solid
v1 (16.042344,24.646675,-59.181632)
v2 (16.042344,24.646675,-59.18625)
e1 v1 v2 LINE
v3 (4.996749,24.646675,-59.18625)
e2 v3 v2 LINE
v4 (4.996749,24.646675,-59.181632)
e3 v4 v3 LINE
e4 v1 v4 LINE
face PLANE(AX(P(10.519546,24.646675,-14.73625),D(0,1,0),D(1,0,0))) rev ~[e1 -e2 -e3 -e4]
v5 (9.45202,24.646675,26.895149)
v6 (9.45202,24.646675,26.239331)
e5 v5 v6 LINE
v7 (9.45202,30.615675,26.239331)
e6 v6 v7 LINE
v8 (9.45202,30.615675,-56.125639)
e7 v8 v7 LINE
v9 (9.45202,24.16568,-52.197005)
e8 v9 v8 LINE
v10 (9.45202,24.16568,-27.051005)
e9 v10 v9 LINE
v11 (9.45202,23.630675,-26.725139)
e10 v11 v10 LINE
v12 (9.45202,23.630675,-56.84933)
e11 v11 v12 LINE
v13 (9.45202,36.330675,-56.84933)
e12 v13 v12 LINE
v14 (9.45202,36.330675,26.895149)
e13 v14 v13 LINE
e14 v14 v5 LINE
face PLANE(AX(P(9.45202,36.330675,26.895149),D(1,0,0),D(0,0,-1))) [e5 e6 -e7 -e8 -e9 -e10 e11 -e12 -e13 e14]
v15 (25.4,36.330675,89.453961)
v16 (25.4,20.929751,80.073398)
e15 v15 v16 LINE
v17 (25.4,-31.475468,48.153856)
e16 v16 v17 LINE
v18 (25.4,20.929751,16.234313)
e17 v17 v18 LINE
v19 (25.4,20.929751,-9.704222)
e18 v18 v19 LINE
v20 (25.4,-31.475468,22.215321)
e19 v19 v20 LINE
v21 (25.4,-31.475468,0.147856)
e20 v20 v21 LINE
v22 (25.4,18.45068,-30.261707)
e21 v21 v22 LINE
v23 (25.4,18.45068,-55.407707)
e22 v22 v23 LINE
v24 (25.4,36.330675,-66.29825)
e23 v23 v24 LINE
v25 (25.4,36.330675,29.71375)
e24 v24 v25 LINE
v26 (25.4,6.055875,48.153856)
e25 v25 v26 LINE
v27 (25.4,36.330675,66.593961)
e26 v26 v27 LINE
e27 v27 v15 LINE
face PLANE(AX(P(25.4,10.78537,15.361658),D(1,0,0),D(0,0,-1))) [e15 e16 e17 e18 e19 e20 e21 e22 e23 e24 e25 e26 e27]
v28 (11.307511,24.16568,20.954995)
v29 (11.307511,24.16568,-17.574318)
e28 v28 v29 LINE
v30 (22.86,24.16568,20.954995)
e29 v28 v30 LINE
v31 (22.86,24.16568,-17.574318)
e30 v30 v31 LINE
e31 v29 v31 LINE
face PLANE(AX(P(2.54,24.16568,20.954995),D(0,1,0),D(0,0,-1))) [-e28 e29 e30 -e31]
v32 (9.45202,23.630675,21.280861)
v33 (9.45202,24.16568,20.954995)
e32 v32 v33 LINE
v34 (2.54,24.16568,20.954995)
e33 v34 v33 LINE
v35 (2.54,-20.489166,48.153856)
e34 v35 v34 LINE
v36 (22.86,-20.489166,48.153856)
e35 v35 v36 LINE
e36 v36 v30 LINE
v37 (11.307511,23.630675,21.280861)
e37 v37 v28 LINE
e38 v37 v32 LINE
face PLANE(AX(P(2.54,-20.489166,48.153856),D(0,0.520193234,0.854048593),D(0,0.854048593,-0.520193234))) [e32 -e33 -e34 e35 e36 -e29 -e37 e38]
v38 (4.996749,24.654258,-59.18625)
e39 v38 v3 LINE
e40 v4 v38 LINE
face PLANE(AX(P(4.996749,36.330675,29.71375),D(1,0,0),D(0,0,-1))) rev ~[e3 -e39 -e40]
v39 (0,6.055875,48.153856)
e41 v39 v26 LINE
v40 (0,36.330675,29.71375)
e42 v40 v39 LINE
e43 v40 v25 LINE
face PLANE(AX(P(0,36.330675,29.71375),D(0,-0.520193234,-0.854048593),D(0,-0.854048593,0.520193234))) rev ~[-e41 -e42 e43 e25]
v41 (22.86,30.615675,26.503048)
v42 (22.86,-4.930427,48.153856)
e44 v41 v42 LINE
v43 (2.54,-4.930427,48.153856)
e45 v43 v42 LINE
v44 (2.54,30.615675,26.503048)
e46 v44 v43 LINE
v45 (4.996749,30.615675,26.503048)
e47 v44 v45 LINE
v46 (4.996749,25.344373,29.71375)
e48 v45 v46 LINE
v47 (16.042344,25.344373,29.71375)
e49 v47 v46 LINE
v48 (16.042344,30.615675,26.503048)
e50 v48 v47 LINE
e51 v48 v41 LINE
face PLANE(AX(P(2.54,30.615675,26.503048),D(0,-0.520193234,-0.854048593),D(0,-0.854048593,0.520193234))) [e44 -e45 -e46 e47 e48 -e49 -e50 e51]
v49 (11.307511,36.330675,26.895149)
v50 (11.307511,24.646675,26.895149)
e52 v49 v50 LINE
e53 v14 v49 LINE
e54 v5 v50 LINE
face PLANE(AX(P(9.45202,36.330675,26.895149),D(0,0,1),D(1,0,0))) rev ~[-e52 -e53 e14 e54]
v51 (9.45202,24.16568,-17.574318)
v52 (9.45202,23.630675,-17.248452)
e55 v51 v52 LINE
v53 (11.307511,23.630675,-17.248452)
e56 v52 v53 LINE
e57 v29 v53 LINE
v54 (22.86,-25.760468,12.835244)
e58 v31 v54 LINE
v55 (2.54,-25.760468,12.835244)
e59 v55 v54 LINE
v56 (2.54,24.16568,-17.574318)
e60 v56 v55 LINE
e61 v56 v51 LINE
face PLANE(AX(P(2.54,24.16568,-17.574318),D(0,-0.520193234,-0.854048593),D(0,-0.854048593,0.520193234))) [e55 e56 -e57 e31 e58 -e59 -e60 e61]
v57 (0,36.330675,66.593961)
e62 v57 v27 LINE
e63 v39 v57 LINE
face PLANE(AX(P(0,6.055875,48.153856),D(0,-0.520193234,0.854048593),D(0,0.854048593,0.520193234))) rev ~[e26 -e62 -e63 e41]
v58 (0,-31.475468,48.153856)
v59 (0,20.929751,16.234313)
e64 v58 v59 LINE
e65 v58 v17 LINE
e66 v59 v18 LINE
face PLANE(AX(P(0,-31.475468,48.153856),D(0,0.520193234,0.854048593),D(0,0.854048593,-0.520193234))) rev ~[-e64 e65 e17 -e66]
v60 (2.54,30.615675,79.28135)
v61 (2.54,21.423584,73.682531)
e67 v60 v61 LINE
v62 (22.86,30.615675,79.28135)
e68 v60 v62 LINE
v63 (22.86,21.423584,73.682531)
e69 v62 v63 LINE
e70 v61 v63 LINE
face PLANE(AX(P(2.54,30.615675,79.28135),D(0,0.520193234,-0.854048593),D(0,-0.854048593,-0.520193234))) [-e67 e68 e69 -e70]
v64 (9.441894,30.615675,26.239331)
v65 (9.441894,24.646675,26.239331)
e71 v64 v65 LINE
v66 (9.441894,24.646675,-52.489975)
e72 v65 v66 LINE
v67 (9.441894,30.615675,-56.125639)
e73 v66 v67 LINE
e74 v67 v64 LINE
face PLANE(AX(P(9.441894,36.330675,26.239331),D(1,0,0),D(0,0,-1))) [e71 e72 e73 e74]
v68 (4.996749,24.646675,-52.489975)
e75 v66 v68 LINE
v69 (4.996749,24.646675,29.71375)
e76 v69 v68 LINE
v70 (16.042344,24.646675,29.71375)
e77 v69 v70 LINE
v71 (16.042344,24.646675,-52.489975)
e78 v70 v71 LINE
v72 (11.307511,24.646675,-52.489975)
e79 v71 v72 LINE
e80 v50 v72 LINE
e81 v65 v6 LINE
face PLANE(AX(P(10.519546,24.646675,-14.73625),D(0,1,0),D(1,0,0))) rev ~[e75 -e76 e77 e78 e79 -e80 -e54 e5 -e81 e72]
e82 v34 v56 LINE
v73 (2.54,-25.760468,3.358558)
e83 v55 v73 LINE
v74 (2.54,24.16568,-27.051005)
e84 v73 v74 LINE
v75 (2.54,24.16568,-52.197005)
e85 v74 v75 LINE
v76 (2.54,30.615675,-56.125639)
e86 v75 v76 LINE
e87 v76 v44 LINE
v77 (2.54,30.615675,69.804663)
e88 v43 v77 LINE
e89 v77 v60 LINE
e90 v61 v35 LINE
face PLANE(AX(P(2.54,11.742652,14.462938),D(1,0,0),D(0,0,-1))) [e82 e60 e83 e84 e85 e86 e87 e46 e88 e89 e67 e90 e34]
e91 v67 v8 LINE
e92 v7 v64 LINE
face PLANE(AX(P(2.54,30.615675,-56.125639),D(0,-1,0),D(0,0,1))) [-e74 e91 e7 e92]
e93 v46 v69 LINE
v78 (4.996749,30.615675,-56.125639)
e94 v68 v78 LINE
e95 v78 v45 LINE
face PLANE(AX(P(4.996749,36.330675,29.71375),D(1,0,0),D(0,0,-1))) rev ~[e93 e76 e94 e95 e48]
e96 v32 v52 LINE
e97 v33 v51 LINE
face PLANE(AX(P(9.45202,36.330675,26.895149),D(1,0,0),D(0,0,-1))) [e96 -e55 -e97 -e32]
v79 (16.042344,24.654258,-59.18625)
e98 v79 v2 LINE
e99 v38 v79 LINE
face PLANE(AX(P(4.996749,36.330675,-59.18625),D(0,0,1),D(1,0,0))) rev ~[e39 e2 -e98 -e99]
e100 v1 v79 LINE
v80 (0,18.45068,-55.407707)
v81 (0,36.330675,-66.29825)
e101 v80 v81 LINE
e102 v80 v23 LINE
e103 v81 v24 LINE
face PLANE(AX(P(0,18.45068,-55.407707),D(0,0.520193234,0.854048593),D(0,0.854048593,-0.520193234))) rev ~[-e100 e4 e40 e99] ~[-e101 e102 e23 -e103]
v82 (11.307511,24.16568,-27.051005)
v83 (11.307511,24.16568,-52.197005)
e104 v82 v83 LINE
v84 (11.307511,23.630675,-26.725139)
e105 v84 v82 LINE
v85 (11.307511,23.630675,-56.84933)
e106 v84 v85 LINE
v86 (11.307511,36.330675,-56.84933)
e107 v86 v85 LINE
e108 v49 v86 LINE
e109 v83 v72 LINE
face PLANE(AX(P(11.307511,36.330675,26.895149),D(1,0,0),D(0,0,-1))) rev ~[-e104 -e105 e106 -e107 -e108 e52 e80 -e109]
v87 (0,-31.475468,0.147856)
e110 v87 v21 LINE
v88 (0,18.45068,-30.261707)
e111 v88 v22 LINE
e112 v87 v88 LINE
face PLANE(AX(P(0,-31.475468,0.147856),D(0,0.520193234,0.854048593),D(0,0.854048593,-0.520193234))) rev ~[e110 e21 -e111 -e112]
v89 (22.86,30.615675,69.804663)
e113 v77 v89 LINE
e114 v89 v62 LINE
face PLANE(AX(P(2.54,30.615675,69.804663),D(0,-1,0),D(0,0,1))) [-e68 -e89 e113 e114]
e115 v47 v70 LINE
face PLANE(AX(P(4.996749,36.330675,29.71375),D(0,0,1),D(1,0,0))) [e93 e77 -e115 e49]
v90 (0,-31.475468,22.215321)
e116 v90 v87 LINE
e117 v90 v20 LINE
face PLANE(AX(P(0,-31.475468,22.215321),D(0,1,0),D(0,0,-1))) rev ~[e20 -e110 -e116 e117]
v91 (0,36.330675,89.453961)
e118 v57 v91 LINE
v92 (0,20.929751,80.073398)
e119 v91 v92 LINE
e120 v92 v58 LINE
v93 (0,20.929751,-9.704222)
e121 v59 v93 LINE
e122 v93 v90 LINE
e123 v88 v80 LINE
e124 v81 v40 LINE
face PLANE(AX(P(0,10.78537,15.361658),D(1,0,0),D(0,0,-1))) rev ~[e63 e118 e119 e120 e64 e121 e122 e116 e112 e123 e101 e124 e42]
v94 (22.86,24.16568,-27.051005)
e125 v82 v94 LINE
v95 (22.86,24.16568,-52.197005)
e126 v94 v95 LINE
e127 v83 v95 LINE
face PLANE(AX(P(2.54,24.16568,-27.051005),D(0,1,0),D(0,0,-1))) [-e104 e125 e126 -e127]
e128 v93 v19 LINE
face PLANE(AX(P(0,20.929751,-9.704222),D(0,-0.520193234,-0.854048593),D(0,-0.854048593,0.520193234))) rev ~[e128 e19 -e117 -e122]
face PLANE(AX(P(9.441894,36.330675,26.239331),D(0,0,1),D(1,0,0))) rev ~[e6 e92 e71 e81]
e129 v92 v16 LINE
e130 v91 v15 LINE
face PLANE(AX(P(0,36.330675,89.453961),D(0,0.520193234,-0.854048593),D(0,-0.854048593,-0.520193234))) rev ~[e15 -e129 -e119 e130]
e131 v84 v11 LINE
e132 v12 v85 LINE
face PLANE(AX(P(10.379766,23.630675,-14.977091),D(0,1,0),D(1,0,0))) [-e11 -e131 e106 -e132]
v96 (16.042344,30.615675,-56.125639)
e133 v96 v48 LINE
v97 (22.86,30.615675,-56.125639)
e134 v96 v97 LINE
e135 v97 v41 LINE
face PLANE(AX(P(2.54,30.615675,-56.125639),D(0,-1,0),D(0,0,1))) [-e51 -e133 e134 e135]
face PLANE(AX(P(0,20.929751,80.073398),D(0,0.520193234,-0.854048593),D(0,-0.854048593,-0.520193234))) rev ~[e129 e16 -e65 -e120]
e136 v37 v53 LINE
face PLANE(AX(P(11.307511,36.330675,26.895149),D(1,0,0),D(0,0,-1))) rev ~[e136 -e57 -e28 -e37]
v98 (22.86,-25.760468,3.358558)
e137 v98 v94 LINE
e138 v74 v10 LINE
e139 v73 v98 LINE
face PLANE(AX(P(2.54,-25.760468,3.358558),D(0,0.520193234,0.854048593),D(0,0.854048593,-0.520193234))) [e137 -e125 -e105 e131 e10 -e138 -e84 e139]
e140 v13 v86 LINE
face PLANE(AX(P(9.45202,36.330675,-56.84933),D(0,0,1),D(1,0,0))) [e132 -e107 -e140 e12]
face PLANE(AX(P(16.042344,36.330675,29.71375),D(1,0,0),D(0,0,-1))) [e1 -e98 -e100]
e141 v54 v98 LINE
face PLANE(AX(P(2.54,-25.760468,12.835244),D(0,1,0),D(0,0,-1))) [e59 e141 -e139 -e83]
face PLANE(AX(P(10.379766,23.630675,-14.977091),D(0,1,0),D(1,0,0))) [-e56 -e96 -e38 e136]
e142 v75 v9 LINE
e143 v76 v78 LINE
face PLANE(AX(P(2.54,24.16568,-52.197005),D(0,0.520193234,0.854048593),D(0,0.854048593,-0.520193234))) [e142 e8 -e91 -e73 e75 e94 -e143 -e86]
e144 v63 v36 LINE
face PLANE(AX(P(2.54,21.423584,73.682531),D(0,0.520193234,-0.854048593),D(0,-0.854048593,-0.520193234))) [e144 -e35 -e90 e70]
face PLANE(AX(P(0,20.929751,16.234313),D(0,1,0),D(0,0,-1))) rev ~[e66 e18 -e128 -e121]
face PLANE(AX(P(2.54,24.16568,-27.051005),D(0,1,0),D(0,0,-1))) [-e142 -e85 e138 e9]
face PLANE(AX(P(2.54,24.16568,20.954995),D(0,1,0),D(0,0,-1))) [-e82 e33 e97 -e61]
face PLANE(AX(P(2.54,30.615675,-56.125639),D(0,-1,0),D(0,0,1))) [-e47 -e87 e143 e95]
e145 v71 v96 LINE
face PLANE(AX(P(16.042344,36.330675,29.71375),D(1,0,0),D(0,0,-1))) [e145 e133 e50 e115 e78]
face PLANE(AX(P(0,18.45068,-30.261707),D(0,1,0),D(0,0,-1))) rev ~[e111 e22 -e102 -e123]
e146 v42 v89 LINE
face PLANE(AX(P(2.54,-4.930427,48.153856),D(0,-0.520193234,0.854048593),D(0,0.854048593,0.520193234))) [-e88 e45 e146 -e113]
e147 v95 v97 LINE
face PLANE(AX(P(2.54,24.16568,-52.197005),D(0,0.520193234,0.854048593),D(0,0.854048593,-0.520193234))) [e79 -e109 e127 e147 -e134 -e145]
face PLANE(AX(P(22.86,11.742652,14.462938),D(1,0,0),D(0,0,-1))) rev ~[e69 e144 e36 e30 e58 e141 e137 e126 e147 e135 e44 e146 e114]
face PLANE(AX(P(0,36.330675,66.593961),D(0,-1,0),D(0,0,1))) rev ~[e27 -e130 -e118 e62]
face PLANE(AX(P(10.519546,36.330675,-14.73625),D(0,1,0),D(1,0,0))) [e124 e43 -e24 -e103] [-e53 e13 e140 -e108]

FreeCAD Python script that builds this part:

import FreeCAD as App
import Part
import Sketcher
Q = App.Units.Quantity

doc = App.newDocument("Part")
body = doc.addObject("PartDesign::Body", "Body")

# Sketch on YZ plane
sketch1 = body.newObject("Sketcher::SketchObject", "Sketch")
sketch1.AttachmentSupport = (doc.getObject("YZ_Plane"), [""])
sketch1.MapMode = "FlatFace"
sketch1.addGeometry([
    Part.LineSegment(App.Vector(21, 80, 0), App.Vector(-31, 48, 0)),  # 0
    Part.LineSegment(App.Vector(-31, 48, 0), App.Vector(21, 16, 0)),  # 1
    Part.LineSegment(App.Vector(21, 16, 0), App.Vector(21, -10, 0)),  # 2
    Part.LineSegment(App.Vector(21, -10, 0), App.Vector(-31, 22, 0)),  # 3
    Part.LineSegment(App.Vector(-31, 22, 0), App.Vector(-31, 0, 0)),  # 4
    Part.LineSegment(App.Vector(-31, 0, 0), App.Vector(18, -30, 0)),  # 5
    Part.LineSegment(App.Vector(18, -30, 0), App.Vector(18, -55, 0)),  # 6
    Part.LineSegment(App.Vector(18, -55, 0), App.Vector(36, -66, 0)),  # 7
    Part.LineSegment(App.Vector(36, -66, 0), App.Vector(36, 30, 0)),  # 8
    Part.LineSegment(App.Vector(36, 30, 0), App.Vector(6, 48, 0)),  # 9
    Part.LineSegment(App.Vector(6, 48, 0), App.Vector(36, 67, 0)),  # 10
    Part.LineSegment(App.Vector(36, 67, 0), App.Vector(36, 89, 0)),  # 11
    Part.LineSegment(App.Vector(36, 89, 0), App.Vector(21, 80, 0)),  # 12
], False)
sketch1.addConstraint([
    Sketcher.Constraint("Coincident", 0, 2, 1, 1),
    Sketcher.Constraint("Coincident", 1, 2, 2, 1),
    Sketcher.Constraint("Coincident", 2, 2, 3, 1),
    Sketcher.Constraint("Coincident", 3, 2, 4, 1),
    Sketcher.Constraint("Coincident", 4, 2, 5, 1),
    Sketcher.Constraint("Coincident", 5, 2, 6, 1),
    Sketcher.Constraint("Coincident", 6, 2, 7, 1),
    Sketcher.Constraint("Coincident", 7, 2, 8, 1),
    Sketcher.Constraint("Coincident", 8, 2, 9, 1),
    Sketcher.Constraint("Coincident", 9, 2, 10, 1),
    Sketcher.Constraint("Coincident", 10, 2, 11, 1),
    Sketcher.Constraint("Coincident", 11, 2, 12, 1),
    Sketcher.Constraint("Coincident", 12, 2, 0, 1),
    Sketcher.Constraint("Vertical", 2),
    Sketcher.Constraint("Vertical", 4),
    Sketcher.Constraint("Vertical", 6),
    Sketcher.Constraint("Vertical", 8),
    Sketcher.Constraint("Vertical", 11),
    Sketcher.Constraint("Parallel", 1, 3),
    Sketcher.Constraint("Parallel", 3, 5),
    Sketcher.Constraint("Parallel", 5, 7),
    Sketcher.Constraint("Parallel", 7, 9),
    Sketcher.Constraint("Parallel", 0, 10),
    Sketcher.Constraint("Parallel", 10, 12),
    Sketcher.Constraint("Horizontal", 0, 2, 9, 2),
    Sketcher.Constraint("Vertical", 0, 2, 3, 2),
    Sketcher.Constraint("Vertical", 8, 2, 10, 2),
    Sketcher.Constraint("Vertical", 2, 2, 12, 2),
    Sketcher.Constraint("Equal", 0, 1),
    Sketcher.Constraint("DistanceY", 11, 1, 11, 2, Q("0.9 in")),
    Sketcher.Constraint("DistanceY", 6, 2, 6, 1, Q("0.99 in")),
    Sketcher.Constraint("DistanceY", 8, 1, 8, 2, Q("3.78 in")),
    Sketcher.Constraint("DistanceY", -1, 1, 12, 2, Q("80.073398 mm")),
    Sketcher.Constraint("DistanceX", 9, 2, 8, 2, Q("30.2748 mm")),
    Sketcher.Constraint("Distance", 7, Q("20.935572 mm")),
    Sketcher.Constraint("Distance", 9, Q("35.448568 mm")),
    Sketcher.Constraint("DistanceY", 2, 2, 2, 1, Q("25.938535 mm")),
    Sketcher.Constraint("DistanceX", -1, 1, 1, 2, Q("20.929751 mm")),
    Sketcher.Constraint("DistanceY", 2, 2, -1, 1, Q("9.704222 mm")),
])
pad1 = body.newObject("PartDesign::Pad", "Pad")
pad1.Profile = sketch1
pad1.Length = Q("1 in")

# Sketch on YZ plane
sketch2 = body.newObject("Sketcher::SketchObject", "Sketch001")
sketch2.AttachmentSupport = (doc.getObject("YZ_Plane"), [""])
sketch2.MapMode = "FlatFace"
sketch2.AttachmentOffset = App.Placement(App.Vector(0, 0, 0.1 * 25.4), App.Rotation())
sketch2.addGeometry([
    Part.LineSegment(App.Vector(21, 74, 0), App.Vector(-20, 48, 0)),  # 0
    Part.LineSegment(App.Vector(-20, 48, 0), App.Vector(24, 21, 0)),  # 1
    Part.LineSegment(App.Vector(24, 21, 0), App.Vector(24, -18, 0)),  # 2
    Part.LineSegment(App.Vector(24, -18, 0), App.Vector(-26, 13, 0)),  # 3
    Part.LineSegment(App.Vector(-26, 13, 0), App.Vector(-26, 3, 0)),  # 4
    Part.LineSegment(App.Vector(-26, 3, 0), App.Vector(24, -27, 0)),  # 5
    Part.LineSegment(App.Vector(24, -27, 0), App.Vector(24, -52, 0)),  # 6
    Part.LineSegment(App.Vector(24, -52, 0), App.Vector(31, -56, 0)),  # 7
    Part.LineSegment(App.Vector(31, -56, 0), App.Vector(31, 27, 0)),  # 8
    Part.LineSegment(App.Vector(31, 27, 0), App.Vector(-5, 48, 0)),  # 9
    Part.LineSegment(App.Vector(-5, 48, 0), App.Vector(31, 70, 0)),  # 10
    Part.LineSegment(App.Vector(31, 70, 0), App.Vector(31, 79, 0)),  # 11
    Part.LineSegment(App.Vector(31, 79, 0), App.Vector(21, 74, 0)),  # 12
], False)
sketch2.addConstraint([
    Sketcher.Constraint("Coincident", 0, 2, 1, 1),
    Sketcher.Constraint("Coincident", 1, 2, 2, 1),
    Sketcher.Constraint("Coincident", 2, 2, 3, 1),
    Sketcher.Constraint("Coincident", 3, 2, 4, 1),
    Sketcher.Constraint("Coincident", 4, 2, 5, 1),
    Sketcher.Constraint("Coincident", 5, 2, 6, 1),
    Sketcher.Constraint("Coincident", 6, 2, 7, 1),
    Sketcher.Constraint("Coincident", 7, 2, 8, 1),
    Sketcher.Constraint("Coincident", 8, 2, 9, 1),
    Sketcher.Constraint("Coincident", 9, 2, 10, 1),
    Sketcher.Constraint("Coincident", 10, 2, 11, 1),
    Sketcher.Constraint("Coincident", 11, 2, 12, 1),
    Sketcher.Constraint("Coincident", 12, 2, 0, 1),
    Sketcher.Constraint("Vertical", 2),
    Sketcher.Constraint("Vertical", 4),
    Sketcher.Constraint("Vertical", 6),
    Sketcher.Constraint("Vertical", 8),
    Sketcher.Constraint("Vertical", 11),
    Sketcher.Constraint("Parallel", 1, 3),
    Sketcher.Constraint("Parallel", 3, 5),
    Sketcher.Constraint("Parallel", 5, 7),
    Sketcher.Constraint("Parallel", 7, 9),
    Sketcher.Constraint("Parallel", 0, 10),
    Sketcher.Constraint("Parallel", 10, 12),
    Sketcher.Constraint("Horizontal", 0, 2, 9, 2),
    Sketcher.Constraint("Vertical", 2, 2, 5, 2),
    Sketcher.Constraint("Vertical", 8, 2, 10, 2),
    Sketcher.Constraint("Equal", 4, 11),
    Sketcher.Constraint("Equal", 9, 10),
    Sketcher.Constraint("DistanceY", 6, 2, 6, 1, Q("0.99 in")),
    Sketcher.Constraint("DistanceY", 5, 2, 1, 2, Q("1.89 in")),
    Sketcher.Constraint("DistanceY", -1, 1, 1, 2, Q("0.8249998 in")),
    Sketcher.Constraint("DistanceY", 8, 2, 11, 2, Q("52.778302 mm")),
    Sketcher.Constraint("Distance", 0, Q("49.075369 mm")),
    Sketcher.Constraint("Distance", 1, Q("52.286071 mm")),
    Sketcher.Constraint("Distance", 7, Q("7.552258 mm")),
    Sketcher.Constraint("DistanceY", 2, 2, 2, 1, Q("38.529313 mm")),
    Sketcher.Constraint("DistanceX", -1, 1, 1, 2, Q("24.16568 mm")),
    Sketcher.Constraint("DistanceY", 3, 2, 0, 2, Q("35.318611 mm")),
])
pocket1 = body.newObject("PartDesign::Pocket", "Pocket")
pocket1.Profile = sketch2
pocket1.Length = Q("0.8 in")
pocket1.Reversed = True

# Sketch on XZ plane
sketch3 = body.newObject("Sketcher::SketchObject", "Sketch002")
sketch3.AttachmentSupport = (doc.getObject("XZ_Plane"), [""])
sketch3.MapMode = "FlatFace"
sketch3.AttachmentOffset = App.Placement(App.Vector(0, 0, -36.330675), App.Rotation())
sketch3.addGeometry([
    Part.LineSegment(App.Vector(5, -59.2, 0), App.Vector(5, 29.7, 0)),  # 0
    Part.LineSegment(App.Vector(5, 29.7, 0), App.Vector(16, 29.7, 0)),  # 1
    Part.LineSegment(App.Vector(16, 29.7, 0), App.Vector(16, -59.2, 0)),  # 2
    Part.LineSegment(App.Vector(16, -59.2, 0), App.Vector(5, -59.2, 0)),  # 3
    Part.LineSegment(App.Vector(11, 26.2, 0), App.Vector(9.4, 26.2, 0)),  # 4
    Part.LineSegment(App.Vector(9.4, 26.2, 0), App.Vector(9.4, -56.7, 0)),  # 5
    Part.LineSegment(App.Vector(9.4, -56.7, 0), App.Vector(11, -56.7, 0)),  # 6
    Part.LineSegment(App.Vector(11, -56.7, 0), App.Vector(11, 26.2, 0)),  # 7
], False)
sketch3.addConstraint([
    Sketcher.Constraint("Coincident", 0, 2, 1, 1),
    Sketcher.Constraint("Coincident", 1, 2, 2, 1),
    Sketcher.Constraint("Coincident", 2, 2, 3, 1),
    Sketcher.Constraint("Coincident", 3, 2, 0, 1),
    Sketcher.Constraint("Coincident", 4, 2, 5, 1),
    Sketcher.Constraint("Coincident", 5, 2, 6, 1),
    Sketcher.Constraint("Coincident", 6, 2, 7, 1),
    Sketcher.Constraint("Coincident", 7, 2, 4, 1),
    Sketcher.Constraint("Vertical", 0),
    Sketcher.Constraint("Horizontal", 1),
    Sketcher.Constraint("Vertical", 2),
    Sketcher.Constraint("Horizontal", 3),
    Sketcher.Constraint("Horizontal", 4),
    Sketcher.Constraint("Vertical", 5),
    Sketcher.Constraint("Horizontal", 6),
    Sketcher.Constraint("Vertical", 7),
    Sketcher.Constraint("DistanceY", 0, 1, 0, 2, Q("3.5 in")),
    Sketcher.Constraint("DistanceX", 6, 2, 2, 2, Q("0.2 in")),
    Sketcher.Constraint("DistanceX", 4, 2, 4, 1, Q("1.520449 mm")),
    Sketcher.Constraint("DistanceY", 5, 2, 5, 1, Q("82.973089 mm")),
    Sketcher.Constraint("DistanceX", 1, 1, 1, 2, Q("11.045595 mm")),
    Sketcher.Constraint("DistanceX", -1, 1, 0, 2, Q("4.996749 mm")),
    Sketcher.Constraint("DistanceY", -1, 1, 0, 2, Q("29.71375 mm")),
    Sketcher.Constraint("DistanceY", -1, 1, 4, 2, Q("26.239331 mm")),
])
pad2 = body.newObject("PartDesign::Pad", "Pad001")
pad2.Profile = sketch3
pad2.Length = Q("0.46 in")

# Sketch on XZ plane
sketch4 = body.newObject("Sketcher::SketchObject", "Sketch003")
sketch4.AttachmentSupport = (doc.getObject("XZ_Plane"), [""])
sketch4.MapMode = "FlatFace"
sketch4.AttachmentOffset = App.Placement(App.Vector(0, 0, -36.330675), App.Rotation())
sketch4.addGeometry([
    Part.LineSegment(App.Vector(9.5, -56.8, 0), App.Vector(9.5, 26.9, 0)),
    Part.LineSegment(App.Vector(9.5, 26.9, 0), App.Vector(11.3, 26.9, 0)),
    Part.LineSegment(App.Vector(11.3, 26.9, 0), App.Vector(11.3, -56.8, 0)),
    Part.LineSegment(App.Vector(11.3, -56.8, 0), App.Vector(9.5, -56.8, 0)),
], False)
sketch4.addConstraint([
    Sketcher.Constraint("Coincident", 0, 2, 1, 1),
    Sketcher.Constraint("Coincident", 1, 2, 2, 1),
    Sketcher.Constraint("Coincident", 2, 2, 3, 1),
    Sketcher.Constraint("Coincident", 3, 2, 0, 1),
    Sketcher.Constraint("Vertical", 0),
    Sketcher.Constraint("Horizontal", 1),
    Sketcher.Constraint("Vertical", 2),
    Sketcher.Constraint("Horizontal", 3),
    Sketcher.Constraint("DistanceX", 1, 1, 1, 2, Q("1.855491 mm")),
    Sketcher.Constraint("DistanceY", 0, 1, 0, 2, Q("83.744478 mm")),
    Sketcher.Constraint("DistanceX", -1, 1, 0, 2, Q("9.45202 mm")),
    Sketcher.Constraint("DistanceY", -1, 1, 0, 2, Q("26.895149 mm")),
])
pocket2 = body.newObject("PartDesign::Pocket", "Pocket001")
pocket2.Profile = sketch4
pocket2.Length = Q("0.5 in")
pocket2.Reversed = True

doc.recompute()
